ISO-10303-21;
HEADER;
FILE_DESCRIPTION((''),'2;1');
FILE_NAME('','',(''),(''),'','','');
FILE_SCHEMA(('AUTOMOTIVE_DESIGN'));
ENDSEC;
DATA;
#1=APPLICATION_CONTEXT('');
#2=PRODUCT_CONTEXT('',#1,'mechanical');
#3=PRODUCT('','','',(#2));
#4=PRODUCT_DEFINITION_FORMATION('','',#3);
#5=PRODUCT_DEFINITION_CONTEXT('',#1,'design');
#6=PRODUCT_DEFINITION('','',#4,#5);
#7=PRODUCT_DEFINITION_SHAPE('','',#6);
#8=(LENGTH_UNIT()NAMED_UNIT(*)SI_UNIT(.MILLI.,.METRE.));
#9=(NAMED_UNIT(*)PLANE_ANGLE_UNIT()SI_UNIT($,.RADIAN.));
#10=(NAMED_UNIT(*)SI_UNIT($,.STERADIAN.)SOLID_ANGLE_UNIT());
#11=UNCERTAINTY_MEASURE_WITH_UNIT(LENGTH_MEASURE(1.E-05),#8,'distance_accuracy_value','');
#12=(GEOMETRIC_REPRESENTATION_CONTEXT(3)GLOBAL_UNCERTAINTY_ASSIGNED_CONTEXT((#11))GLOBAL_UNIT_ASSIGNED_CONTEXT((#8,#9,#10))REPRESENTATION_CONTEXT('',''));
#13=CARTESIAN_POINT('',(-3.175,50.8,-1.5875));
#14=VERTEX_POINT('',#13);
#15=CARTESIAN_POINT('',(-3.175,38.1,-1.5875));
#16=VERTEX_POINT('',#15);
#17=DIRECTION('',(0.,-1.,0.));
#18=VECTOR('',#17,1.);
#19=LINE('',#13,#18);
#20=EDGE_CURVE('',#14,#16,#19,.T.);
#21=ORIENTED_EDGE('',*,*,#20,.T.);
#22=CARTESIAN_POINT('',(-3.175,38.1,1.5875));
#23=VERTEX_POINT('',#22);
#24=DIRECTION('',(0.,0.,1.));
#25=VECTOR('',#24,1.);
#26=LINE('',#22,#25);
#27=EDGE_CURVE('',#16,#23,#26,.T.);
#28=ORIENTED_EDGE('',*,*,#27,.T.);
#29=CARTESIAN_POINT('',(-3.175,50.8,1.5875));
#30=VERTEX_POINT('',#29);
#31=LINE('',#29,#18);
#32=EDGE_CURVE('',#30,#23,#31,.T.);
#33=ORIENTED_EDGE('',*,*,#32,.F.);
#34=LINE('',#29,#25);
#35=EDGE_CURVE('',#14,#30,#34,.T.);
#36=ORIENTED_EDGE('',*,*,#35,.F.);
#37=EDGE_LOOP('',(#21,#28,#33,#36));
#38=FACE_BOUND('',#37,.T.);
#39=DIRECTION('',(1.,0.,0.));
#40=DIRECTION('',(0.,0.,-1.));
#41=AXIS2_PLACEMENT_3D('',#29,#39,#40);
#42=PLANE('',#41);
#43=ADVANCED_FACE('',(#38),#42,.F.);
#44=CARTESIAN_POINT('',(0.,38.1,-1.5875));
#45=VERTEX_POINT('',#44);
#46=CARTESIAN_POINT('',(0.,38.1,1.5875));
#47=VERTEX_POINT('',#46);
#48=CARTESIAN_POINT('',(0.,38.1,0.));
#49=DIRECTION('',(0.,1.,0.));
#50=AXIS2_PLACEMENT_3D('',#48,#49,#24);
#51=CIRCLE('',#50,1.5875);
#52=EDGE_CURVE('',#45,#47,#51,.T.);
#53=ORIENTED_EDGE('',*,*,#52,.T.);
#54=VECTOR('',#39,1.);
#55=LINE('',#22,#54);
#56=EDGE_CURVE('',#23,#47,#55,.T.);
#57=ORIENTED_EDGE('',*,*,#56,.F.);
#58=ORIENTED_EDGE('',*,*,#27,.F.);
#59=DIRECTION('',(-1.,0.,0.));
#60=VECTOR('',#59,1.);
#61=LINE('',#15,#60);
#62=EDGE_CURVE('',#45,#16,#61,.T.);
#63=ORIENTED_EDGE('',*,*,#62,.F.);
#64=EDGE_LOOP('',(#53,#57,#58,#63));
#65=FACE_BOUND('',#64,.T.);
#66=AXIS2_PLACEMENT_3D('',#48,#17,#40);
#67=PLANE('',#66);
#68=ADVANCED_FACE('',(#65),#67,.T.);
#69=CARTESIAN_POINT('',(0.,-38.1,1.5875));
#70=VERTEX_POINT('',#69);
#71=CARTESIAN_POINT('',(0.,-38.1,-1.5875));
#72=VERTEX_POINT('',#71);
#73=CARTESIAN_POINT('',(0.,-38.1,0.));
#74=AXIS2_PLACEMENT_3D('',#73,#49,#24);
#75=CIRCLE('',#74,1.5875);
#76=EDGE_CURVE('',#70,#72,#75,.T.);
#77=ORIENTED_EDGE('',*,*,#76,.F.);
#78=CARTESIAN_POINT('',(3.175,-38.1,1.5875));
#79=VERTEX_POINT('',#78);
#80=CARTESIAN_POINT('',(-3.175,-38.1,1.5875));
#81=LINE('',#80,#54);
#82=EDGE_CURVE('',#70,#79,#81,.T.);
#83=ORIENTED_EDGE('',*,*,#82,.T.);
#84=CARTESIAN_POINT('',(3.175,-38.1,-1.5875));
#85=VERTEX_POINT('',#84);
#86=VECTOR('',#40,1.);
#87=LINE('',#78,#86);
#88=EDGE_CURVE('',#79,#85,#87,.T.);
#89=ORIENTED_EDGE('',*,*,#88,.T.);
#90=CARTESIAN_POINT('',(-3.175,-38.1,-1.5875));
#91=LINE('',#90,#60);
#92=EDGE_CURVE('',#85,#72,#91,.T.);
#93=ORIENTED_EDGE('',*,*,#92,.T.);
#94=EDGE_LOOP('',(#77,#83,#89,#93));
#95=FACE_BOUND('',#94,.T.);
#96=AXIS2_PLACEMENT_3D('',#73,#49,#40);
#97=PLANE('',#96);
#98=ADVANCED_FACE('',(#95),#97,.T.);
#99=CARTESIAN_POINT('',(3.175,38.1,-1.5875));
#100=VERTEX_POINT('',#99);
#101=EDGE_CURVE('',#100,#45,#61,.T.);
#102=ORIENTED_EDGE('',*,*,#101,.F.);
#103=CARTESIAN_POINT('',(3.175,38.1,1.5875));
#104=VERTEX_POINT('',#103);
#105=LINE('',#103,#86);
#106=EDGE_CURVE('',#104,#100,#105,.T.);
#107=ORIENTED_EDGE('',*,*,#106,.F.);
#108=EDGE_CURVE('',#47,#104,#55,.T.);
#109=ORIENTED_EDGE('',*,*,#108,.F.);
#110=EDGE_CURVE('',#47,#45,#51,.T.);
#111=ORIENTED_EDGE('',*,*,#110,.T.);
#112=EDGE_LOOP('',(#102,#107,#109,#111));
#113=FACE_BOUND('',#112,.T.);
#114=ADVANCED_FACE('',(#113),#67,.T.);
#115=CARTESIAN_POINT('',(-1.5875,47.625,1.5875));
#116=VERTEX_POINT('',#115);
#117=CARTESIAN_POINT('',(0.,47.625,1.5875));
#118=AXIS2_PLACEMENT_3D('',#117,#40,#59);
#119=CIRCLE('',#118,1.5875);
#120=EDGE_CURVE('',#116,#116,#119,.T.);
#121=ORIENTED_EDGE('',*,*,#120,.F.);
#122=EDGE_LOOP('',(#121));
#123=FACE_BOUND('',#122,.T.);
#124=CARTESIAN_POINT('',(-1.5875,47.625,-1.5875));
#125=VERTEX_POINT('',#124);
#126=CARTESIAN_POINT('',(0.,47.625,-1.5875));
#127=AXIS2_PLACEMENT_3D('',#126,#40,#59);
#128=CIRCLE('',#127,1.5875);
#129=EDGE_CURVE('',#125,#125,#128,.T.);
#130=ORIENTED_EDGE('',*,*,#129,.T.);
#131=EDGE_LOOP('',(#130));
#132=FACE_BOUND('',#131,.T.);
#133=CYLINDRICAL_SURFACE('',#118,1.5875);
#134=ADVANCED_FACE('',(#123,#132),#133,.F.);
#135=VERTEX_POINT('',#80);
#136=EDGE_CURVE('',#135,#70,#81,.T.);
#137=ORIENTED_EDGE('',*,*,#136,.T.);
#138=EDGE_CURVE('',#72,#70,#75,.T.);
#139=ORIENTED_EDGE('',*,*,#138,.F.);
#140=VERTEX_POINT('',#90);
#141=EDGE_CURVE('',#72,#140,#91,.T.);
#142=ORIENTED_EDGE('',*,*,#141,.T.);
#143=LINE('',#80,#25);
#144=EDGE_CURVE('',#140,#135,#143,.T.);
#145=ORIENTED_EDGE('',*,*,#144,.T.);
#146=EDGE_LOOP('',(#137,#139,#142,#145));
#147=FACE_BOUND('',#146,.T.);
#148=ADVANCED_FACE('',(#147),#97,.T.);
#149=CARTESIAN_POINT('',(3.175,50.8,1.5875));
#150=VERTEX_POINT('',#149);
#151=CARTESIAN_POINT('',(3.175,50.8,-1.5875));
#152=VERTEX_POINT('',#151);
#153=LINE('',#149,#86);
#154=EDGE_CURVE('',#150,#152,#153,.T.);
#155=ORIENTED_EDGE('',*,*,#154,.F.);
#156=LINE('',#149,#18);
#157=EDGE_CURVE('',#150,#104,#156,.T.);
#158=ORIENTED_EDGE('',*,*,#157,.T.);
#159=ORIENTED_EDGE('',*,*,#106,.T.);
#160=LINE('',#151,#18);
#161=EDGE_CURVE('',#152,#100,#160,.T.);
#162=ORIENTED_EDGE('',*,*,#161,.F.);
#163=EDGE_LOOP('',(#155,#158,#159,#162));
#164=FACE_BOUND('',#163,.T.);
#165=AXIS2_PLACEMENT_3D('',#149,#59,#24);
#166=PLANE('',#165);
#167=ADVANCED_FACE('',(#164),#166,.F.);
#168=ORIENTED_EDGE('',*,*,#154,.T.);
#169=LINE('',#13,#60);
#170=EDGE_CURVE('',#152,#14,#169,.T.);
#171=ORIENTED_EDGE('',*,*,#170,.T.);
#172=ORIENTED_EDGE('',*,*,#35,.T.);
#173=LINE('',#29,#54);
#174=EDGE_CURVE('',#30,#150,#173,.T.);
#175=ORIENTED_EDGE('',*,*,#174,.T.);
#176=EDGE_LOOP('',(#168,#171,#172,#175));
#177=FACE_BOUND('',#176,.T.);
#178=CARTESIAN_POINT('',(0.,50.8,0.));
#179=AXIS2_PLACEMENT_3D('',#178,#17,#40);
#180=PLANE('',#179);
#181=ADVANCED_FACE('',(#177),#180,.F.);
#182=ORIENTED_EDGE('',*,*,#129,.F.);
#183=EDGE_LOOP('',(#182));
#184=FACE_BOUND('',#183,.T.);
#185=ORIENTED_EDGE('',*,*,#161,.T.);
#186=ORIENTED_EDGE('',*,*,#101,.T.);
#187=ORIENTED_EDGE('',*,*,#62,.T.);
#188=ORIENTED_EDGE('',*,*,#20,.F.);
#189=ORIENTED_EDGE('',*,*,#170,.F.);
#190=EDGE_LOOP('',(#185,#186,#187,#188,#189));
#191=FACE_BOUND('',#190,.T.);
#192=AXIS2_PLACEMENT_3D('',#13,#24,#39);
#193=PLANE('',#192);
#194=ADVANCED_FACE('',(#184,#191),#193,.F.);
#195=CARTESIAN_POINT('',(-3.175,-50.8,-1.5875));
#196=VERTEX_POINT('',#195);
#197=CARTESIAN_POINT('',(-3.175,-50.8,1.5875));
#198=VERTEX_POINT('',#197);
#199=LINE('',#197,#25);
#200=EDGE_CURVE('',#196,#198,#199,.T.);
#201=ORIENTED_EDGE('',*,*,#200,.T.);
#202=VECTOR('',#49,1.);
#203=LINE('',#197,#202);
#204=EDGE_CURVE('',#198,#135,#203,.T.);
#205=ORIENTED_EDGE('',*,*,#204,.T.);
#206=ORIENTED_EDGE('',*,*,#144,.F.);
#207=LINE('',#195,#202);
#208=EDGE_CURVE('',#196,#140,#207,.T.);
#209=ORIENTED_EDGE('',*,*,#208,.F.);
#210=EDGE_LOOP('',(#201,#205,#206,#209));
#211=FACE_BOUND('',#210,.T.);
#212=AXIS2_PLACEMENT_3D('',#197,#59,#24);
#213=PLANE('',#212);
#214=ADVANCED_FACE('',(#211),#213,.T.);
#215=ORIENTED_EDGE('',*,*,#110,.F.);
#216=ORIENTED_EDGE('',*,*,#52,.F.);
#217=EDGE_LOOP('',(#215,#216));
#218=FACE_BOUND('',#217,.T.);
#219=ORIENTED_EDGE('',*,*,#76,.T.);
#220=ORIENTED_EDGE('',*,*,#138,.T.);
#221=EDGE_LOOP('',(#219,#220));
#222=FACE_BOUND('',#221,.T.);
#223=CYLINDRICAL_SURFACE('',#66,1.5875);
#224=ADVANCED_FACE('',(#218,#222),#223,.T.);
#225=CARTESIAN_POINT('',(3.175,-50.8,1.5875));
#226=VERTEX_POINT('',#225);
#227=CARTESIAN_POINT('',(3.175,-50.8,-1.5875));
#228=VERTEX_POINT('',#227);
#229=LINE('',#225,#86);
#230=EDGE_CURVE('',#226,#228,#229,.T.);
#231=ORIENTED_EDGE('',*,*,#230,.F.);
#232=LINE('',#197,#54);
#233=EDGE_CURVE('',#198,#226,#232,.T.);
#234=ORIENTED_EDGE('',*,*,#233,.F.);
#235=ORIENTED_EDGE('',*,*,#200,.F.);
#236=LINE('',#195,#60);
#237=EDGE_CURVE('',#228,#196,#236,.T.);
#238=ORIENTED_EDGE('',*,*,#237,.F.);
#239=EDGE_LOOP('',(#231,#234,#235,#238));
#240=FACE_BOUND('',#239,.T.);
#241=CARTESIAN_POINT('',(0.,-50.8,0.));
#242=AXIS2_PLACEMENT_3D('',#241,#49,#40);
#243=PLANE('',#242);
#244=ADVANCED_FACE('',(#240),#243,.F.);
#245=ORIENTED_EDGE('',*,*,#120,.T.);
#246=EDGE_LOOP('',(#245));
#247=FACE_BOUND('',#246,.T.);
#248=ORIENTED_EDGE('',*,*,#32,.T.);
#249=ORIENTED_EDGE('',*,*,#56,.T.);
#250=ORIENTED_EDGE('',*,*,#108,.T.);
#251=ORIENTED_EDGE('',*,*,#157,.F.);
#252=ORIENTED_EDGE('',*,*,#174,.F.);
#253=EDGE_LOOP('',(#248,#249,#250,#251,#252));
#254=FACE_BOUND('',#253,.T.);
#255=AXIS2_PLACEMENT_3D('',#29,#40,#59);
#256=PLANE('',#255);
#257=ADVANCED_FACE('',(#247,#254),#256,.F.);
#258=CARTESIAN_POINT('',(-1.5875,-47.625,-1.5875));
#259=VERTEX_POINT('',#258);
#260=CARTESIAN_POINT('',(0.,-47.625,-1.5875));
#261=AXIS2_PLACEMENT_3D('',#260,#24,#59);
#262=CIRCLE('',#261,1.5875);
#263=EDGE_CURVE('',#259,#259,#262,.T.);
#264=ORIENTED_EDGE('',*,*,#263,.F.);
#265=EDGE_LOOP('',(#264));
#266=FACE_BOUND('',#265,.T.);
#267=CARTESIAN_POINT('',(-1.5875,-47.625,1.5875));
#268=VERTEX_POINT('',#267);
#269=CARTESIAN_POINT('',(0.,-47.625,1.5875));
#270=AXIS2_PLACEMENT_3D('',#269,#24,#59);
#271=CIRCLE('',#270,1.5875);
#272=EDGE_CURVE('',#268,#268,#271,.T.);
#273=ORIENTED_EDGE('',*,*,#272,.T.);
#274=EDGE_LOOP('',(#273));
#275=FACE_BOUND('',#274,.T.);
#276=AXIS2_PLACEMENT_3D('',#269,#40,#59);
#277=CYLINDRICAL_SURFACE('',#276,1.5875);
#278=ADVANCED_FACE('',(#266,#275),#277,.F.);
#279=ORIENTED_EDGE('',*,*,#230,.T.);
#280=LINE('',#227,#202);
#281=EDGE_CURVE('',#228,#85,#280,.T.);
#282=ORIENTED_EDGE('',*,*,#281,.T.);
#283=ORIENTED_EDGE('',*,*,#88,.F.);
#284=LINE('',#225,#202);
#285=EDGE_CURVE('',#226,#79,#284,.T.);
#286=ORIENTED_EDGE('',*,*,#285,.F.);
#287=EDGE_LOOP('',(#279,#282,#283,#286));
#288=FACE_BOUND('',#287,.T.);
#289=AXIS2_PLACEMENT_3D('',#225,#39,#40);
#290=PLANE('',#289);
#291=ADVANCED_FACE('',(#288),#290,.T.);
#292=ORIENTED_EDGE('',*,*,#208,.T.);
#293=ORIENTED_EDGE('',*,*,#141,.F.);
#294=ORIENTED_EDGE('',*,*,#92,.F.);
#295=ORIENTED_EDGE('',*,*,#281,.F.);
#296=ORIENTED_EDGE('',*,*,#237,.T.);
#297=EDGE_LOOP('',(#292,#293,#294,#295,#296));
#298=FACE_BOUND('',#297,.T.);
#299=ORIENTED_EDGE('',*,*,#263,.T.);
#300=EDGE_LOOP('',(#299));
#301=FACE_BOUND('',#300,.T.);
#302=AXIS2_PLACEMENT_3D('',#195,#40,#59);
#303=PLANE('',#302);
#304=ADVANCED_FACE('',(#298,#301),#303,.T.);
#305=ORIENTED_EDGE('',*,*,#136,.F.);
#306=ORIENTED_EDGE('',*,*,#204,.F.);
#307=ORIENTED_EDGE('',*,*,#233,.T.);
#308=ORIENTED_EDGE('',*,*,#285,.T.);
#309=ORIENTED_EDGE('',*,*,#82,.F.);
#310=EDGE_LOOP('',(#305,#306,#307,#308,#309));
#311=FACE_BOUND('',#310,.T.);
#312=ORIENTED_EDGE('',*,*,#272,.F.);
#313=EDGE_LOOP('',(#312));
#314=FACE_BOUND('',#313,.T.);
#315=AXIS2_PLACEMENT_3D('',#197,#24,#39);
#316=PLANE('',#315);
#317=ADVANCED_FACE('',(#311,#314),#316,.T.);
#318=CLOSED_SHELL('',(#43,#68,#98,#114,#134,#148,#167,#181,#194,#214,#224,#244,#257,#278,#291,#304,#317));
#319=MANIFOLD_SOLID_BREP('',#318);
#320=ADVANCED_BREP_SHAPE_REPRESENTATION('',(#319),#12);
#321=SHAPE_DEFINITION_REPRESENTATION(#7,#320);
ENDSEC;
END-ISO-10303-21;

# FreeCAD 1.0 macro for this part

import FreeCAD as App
import Part
import Sketcher
Q = App.Units.Quantity

doc = App.newDocument("Part")
body = doc.addObject("PartDesign::Body", "Body")

sketch1 = body.newObject("Sketcher::SketchObject", "Sketch")
sketch1.AttachmentSupport = (doc.getObject("XZ_Plane"), [""])
sketch1.MapMode = "FlatFace"
sketch1.addGeometry(Part.Circle(App.Vector(0, 0, 0), App.Vector(0, 0, 1), 1.6), False)
sketch1.addConstraint(Sketcher.Constraint("Coincident", 0, 3, -1, 1))
sketch1.addConstraint(Sketcher.Constraint("Diameter", 0, Q("0.125 in")))
pad1 = body.newObject("PartDesign::Pad", "Pad")
pad1.Profile = sketch1
pad1.Length = Q("1.5 in")
pad1.Reversed = True

sketch2 = body.newObject("Sketcher::SketchObject", "Sketch001")
sketch2.AttachmentSupport = (doc.getObject("XZ_Plane"), [""])
sketch2.MapMode = "FlatFace"
sketch2.AttachmentOffset = App.Placement(App.Vector(0, 0, -1.5 * 25.4), App.Rotation())
sketch2.addGeometry(Part.LineSegment(App.Vector(-3.2, -1.6, 0), App.Vector(-3.2, 1.6, 0)), False)
sketch2.addGeometry(Part.LineSegment(App.Vector(-3.2, 1.6, 0), App.Vector(3.2, 1.6, 0)), False)
sketch2.addGeometry(Part.LineSegment(App.Vector(3.2, 1.6, 0), App.Vector(3.2, -1.6, 0)), False)
sketch2.addGeometry(Part.LineSegment(App.Vector(3.2, -1.6, 0), App.Vector(-3.2, -1.6, 0)), False)
sketch2.addConstraint(Sketcher.Constraint("Coincident", 0, 2, 1, 1))
sketch2.addConstraint(Sketcher.Constraint("Coincident", 1, 2, 2, 1))
sketch2.addConstraint(Sketcher.Constraint("Coincident", 2, 2, 3, 1))
sketch2.addConstraint(Sketcher.Constraint("Coincident", 3, 2, 0, 1))
sketch2.addConstraint(Sketcher.Constraint("Vertical", 0))
sketch2.addConstraint(Sketcher.Constraint("Horizontal", 1))
sketch2.addConstraint(Sketcher.Constraint("Vertical", 2))
sketch2.addConstraint(Sketcher.Constraint("Horizontal", 3))
sketch2.addConstraint(Sketcher.Constraint("Symmetric", 0, 2, 2, 2, -1, 1))
sketch2.addConstraint(Sketcher.Constraint("DistanceX", 1, 1, 1, 2, Q("0.25 in")))
sketch2.addConstraint(Sketcher.Constraint("DistanceY", 0, 1, 0, 2, Q("0.125 in")))
pad2 = body.newObject("PartDesign::Pad", "Pad001")
pad2.Profile = sketch2
pad2.Length = Q("0.5 in")
pad2.Reversed = True

sketch3 = body.newObject("Sketcher::SketchObject", "Sketch002")
sketch3.AttachmentSupport = (doc.getObject("XY_Plane"), [""])
sketch3.MapMode = "FlatFace"
sketch3.AttachmentOffset = App.Placement(App.Vector(0, 0, -0.0625 * 25.4), App.Rotation())
sketch3.addGeometry(Part.Circle(App.Vector(0, 47.6, 0), App.Vector(0, 0, 1), 1.6), False)
sketch3.addConstraint(Sketcher.Constraint("PointOnObject", 0, 3, -2))
sketch3.addConstraint(Sketcher.Constraint("Diameter", 0, Q("0.125 in")))
sketch3.addConstraint(Sketcher.Constraint("DistanceY", -1, 1, 0, 3, Q("1.875 in")))
pocket1 = body.newObject("PartDesign::Pocket", "Pocket")
pocket1.Profile = sketch3
pocket1.Type = "ThroughAll"
pocket1.Reversed = True
doc.recompute()

mirrored = body.newObject("PartDesign::Mirrored", "Mirrored")
mirrored.Originals = [pad1, pad2, pocket1]
mirrored.MirrorPlane = (doc.getObject("XZ_Plane"), [""])
body.Tip = mirrored

doc.recompute()
